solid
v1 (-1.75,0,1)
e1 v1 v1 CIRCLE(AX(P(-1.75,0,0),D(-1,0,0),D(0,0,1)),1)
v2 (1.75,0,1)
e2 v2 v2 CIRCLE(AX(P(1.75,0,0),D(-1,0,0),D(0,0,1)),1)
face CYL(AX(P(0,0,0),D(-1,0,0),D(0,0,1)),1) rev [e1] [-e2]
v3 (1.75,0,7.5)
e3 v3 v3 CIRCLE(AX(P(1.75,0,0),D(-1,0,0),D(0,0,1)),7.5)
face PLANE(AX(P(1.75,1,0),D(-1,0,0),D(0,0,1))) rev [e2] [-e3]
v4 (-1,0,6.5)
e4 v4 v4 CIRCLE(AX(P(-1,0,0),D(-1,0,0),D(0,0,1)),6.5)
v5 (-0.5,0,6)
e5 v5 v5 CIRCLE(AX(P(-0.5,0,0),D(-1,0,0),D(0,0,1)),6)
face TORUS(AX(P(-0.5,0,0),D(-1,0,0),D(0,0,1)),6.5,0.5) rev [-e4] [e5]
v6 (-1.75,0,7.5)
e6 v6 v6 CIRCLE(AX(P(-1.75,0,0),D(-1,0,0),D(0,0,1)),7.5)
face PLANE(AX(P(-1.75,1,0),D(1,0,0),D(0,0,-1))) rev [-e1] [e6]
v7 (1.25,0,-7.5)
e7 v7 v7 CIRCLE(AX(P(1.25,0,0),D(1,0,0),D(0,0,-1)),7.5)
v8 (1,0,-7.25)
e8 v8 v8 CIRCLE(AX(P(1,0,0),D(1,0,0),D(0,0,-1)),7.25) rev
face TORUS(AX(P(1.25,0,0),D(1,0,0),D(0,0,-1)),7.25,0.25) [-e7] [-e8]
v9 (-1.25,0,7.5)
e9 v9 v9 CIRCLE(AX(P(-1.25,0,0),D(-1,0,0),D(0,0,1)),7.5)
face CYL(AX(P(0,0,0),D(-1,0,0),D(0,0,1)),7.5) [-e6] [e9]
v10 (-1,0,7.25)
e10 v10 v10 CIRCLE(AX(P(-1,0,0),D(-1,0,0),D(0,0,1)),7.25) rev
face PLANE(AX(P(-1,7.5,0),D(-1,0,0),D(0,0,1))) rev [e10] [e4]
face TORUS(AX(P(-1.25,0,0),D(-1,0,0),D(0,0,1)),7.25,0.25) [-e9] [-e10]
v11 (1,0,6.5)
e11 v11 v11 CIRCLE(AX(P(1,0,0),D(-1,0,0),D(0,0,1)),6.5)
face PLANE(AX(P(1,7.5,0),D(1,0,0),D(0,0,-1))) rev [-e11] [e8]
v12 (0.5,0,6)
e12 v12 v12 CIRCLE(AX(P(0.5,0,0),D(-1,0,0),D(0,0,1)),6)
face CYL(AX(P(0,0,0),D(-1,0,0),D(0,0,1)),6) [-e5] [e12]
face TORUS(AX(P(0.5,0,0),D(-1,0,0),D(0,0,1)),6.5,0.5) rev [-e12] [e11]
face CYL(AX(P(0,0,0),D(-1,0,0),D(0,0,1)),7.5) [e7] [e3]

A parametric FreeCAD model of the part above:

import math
import FreeCAD as App
import Part
import Sketcher
from FreeCAD import Vector
Q = App.Units.Quantity


def edges_at(feature, points):
    """Names of the edges that pass closest to the given points."""
    edges = feature.Shape.Edges
    near = lambda p: min(range(len(edges)), key=lambda i: edges[i].distToShape(Part.Vertex(*p))[0])
    return sorted({f"Edge{near(p) + 1}" for p in points})

doc = App.newDocument("Part")
params = doc.addObject("Spreadsheet::Sheet", "Params")
for row, (alias, value) in enumerate([
    ("sketch1_radius", "0.5 mm"),
    ("sketch1_width", "1 mm"),
    ("sketch1_width2", "3.5 mm"),
    ("sketch1_height", "6.5 mm"),
    ("revolution_angle", "360 deg"),
    ("fillet_radius", "0.25 mm"),
], start=1):
    params.set(f"A{row}", alias)
    params.set(f"B{row}", "=" + value)
    params.setAlias(f"B{row}", alias)

body = doc.addObject("PartDesign::Body", "Body")

# Sketch on XY plane
sketch1 = body.newObject("Sketcher::SketchObject", "Sketch")
sketch1.AttachmentSupport = (doc.getObject("XY_Plane"), [""])
sketch1.MapMode = "FlatFace"
sketch1.addGeometry(Part.LineSegment(Vector(-1.75, 1, 0), Vector(1.75, 1, 0)), False)
sketch1.addGeometry(Part.LineSegment(Vector(1.75, 1, 0), Vector(1.75, 7.5, 0)), False)
sketch1.addGeometry(Part.LineSegment(Vector(1.75, 7.5, 0), Vector(1, 7.5, 0)), False)
sketch1.addGeometry(Part.LineSegment(Vector(1, 7.5, 0), Vector(1, 6.5, 0)), False)
sketch1.addGeometry(Part.ArcOfCircle(Part.Circle(Vector(0.5, 6.5, 0), Vector(0, 0, 1), 0.5), math.radians(-90), math.radians(0)), False)
sketch1.addGeometry(Part.LineSegment(Vector(0.5, 6, 0), Vector(-0.5, 6, 0)), False)
sketch1.addGeometry(Part.ArcOfCircle(Part.Circle(Vector(-0.5, 6.5, 0), Vector(0, 0, 1), 0.5), math.radians(180), math.radians(270)), False)
sketch1.addGeometry(Part.LineSegment(Vector(-1, 6.5, 0), Vector(-1, 7.5, 0)), False)
sketch1.addGeometry(Part.LineSegment(Vector(-1, 7.5, 0), Vector(-1.75, 7.5, 0)), False)
sketch1.addGeometry(Part.LineSegment(Vector(-1.75, 7.5, 0), Vector(-1.75, 1, 0)), False)
sketch1.addConstraint(Sketcher.Constraint("Coincident", 0, 2, 1, 1))
sketch1.addConstraint(Sketcher.Constraint("Coincident", 1, 2, 2, 1))
sketch1.addConstraint(Sketcher.Constraint("Coincident", 2, 2, 3, 1))
sketch1.addConstraint(Sketcher.Constraint("Tangent", 3, 2, 4, 2))
sketch1.addConstraint(Sketcher.Constraint("Tangent", 4, 1, 5, 1))
sketch1.addConstraint(Sketcher.Constraint("Tangent", 5, 2, 6, 2))
sketch1.addConstraint(Sketcher.Constraint("Tangent", 6, 1, 7, 1))
sketch1.addConstraint(Sketcher.Constraint("Coincident", 7, 2, 8, 1))
sketch1.addConstraint(Sketcher.Constraint("Coincident", 8, 2, 9, 1))
sketch1.addConstraint(Sketcher.Constraint("Coincident", 9, 2, 0, 1))
sketch1.addConstraint(Sketcher.Constraint("Horizontal", 0))
sketch1.addConstraint(Sketcher.Constraint("Vertical", 1))
sketch1.addConstraint(Sketcher.Constraint("Horizontal", 2))
sketch1.addConstraint(Sketcher.Constraint("Vertical", 3))
sketch1.addConstraint(Sketcher.Constraint("Horizontal", 5))
sketch1.addConstraint(Sketcher.Constraint("Vertical", 7))
sketch1.addConstraint(Sketcher.Constraint("Horizontal", 8))
sketch1.addConstraint(Sketcher.Constraint("Vertical", 9))
sketch1.addConstraint(Sketcher.Constraint("Equal", 4, 6))
sketch1.addConstraint(Sketcher.Constraint("Symmetric", 2, 2, 7, 2, -2))
sketch1.addConstraint(Sketcher.Constraint("Equal", 2, 8))
sketch1.addConstraint(Sketcher.Constraint("Equal", 5, 3))
sketch1.addConstraint(Sketcher.Constraint("Radius", 4, Q("0.5 mm")))
sketch1.addConstraint(Sketcher.Constraint("DistanceX", 5, 2, 5, 1, Q("1 mm")))
sketch1.addConstraint(Sketcher.Constraint("DistanceX", 0, 1, 0, 2, Q("3.5 mm")))
sketch1.addConstraint(Sketcher.Constraint("DistanceY", 1, 1, 1, 2, Q("6.5 mm")))
sketch1.addConstraint(Sketcher.Constraint("DistanceY", -1, 1, 0, 2, Q("1 mm")))
sketch1.setExpression("Constraints[22]", "Params.sketch1_radius")
sketch1.setExpression("Constraints[23]", "Params.sketch1_width")
sketch1.setExpression("Constraints[24]", "Params.sketch1_width2")
sketch1.setExpression("Constraints[25]", "Params.sketch1_height")
revolution = body.newObject("PartDesign::Revolution", "Revolution")
revolution.Profile = sketch1
revolution.ReferenceAxis = (sketch1, ["H_Axis"])
revolution.setExpression("Angle", "Params.revolution_angle")
doc.recompute()

fillet = body.newObject("PartDesign::Fillet", "Fillet")
fillet.Base = (revolution, edges_at(revolution, [(1, -7.5, 0), (-1, -7.5, 0)]))
fillet.setExpression("Radius", "Params.fillet_radius")

doc.recompute()
